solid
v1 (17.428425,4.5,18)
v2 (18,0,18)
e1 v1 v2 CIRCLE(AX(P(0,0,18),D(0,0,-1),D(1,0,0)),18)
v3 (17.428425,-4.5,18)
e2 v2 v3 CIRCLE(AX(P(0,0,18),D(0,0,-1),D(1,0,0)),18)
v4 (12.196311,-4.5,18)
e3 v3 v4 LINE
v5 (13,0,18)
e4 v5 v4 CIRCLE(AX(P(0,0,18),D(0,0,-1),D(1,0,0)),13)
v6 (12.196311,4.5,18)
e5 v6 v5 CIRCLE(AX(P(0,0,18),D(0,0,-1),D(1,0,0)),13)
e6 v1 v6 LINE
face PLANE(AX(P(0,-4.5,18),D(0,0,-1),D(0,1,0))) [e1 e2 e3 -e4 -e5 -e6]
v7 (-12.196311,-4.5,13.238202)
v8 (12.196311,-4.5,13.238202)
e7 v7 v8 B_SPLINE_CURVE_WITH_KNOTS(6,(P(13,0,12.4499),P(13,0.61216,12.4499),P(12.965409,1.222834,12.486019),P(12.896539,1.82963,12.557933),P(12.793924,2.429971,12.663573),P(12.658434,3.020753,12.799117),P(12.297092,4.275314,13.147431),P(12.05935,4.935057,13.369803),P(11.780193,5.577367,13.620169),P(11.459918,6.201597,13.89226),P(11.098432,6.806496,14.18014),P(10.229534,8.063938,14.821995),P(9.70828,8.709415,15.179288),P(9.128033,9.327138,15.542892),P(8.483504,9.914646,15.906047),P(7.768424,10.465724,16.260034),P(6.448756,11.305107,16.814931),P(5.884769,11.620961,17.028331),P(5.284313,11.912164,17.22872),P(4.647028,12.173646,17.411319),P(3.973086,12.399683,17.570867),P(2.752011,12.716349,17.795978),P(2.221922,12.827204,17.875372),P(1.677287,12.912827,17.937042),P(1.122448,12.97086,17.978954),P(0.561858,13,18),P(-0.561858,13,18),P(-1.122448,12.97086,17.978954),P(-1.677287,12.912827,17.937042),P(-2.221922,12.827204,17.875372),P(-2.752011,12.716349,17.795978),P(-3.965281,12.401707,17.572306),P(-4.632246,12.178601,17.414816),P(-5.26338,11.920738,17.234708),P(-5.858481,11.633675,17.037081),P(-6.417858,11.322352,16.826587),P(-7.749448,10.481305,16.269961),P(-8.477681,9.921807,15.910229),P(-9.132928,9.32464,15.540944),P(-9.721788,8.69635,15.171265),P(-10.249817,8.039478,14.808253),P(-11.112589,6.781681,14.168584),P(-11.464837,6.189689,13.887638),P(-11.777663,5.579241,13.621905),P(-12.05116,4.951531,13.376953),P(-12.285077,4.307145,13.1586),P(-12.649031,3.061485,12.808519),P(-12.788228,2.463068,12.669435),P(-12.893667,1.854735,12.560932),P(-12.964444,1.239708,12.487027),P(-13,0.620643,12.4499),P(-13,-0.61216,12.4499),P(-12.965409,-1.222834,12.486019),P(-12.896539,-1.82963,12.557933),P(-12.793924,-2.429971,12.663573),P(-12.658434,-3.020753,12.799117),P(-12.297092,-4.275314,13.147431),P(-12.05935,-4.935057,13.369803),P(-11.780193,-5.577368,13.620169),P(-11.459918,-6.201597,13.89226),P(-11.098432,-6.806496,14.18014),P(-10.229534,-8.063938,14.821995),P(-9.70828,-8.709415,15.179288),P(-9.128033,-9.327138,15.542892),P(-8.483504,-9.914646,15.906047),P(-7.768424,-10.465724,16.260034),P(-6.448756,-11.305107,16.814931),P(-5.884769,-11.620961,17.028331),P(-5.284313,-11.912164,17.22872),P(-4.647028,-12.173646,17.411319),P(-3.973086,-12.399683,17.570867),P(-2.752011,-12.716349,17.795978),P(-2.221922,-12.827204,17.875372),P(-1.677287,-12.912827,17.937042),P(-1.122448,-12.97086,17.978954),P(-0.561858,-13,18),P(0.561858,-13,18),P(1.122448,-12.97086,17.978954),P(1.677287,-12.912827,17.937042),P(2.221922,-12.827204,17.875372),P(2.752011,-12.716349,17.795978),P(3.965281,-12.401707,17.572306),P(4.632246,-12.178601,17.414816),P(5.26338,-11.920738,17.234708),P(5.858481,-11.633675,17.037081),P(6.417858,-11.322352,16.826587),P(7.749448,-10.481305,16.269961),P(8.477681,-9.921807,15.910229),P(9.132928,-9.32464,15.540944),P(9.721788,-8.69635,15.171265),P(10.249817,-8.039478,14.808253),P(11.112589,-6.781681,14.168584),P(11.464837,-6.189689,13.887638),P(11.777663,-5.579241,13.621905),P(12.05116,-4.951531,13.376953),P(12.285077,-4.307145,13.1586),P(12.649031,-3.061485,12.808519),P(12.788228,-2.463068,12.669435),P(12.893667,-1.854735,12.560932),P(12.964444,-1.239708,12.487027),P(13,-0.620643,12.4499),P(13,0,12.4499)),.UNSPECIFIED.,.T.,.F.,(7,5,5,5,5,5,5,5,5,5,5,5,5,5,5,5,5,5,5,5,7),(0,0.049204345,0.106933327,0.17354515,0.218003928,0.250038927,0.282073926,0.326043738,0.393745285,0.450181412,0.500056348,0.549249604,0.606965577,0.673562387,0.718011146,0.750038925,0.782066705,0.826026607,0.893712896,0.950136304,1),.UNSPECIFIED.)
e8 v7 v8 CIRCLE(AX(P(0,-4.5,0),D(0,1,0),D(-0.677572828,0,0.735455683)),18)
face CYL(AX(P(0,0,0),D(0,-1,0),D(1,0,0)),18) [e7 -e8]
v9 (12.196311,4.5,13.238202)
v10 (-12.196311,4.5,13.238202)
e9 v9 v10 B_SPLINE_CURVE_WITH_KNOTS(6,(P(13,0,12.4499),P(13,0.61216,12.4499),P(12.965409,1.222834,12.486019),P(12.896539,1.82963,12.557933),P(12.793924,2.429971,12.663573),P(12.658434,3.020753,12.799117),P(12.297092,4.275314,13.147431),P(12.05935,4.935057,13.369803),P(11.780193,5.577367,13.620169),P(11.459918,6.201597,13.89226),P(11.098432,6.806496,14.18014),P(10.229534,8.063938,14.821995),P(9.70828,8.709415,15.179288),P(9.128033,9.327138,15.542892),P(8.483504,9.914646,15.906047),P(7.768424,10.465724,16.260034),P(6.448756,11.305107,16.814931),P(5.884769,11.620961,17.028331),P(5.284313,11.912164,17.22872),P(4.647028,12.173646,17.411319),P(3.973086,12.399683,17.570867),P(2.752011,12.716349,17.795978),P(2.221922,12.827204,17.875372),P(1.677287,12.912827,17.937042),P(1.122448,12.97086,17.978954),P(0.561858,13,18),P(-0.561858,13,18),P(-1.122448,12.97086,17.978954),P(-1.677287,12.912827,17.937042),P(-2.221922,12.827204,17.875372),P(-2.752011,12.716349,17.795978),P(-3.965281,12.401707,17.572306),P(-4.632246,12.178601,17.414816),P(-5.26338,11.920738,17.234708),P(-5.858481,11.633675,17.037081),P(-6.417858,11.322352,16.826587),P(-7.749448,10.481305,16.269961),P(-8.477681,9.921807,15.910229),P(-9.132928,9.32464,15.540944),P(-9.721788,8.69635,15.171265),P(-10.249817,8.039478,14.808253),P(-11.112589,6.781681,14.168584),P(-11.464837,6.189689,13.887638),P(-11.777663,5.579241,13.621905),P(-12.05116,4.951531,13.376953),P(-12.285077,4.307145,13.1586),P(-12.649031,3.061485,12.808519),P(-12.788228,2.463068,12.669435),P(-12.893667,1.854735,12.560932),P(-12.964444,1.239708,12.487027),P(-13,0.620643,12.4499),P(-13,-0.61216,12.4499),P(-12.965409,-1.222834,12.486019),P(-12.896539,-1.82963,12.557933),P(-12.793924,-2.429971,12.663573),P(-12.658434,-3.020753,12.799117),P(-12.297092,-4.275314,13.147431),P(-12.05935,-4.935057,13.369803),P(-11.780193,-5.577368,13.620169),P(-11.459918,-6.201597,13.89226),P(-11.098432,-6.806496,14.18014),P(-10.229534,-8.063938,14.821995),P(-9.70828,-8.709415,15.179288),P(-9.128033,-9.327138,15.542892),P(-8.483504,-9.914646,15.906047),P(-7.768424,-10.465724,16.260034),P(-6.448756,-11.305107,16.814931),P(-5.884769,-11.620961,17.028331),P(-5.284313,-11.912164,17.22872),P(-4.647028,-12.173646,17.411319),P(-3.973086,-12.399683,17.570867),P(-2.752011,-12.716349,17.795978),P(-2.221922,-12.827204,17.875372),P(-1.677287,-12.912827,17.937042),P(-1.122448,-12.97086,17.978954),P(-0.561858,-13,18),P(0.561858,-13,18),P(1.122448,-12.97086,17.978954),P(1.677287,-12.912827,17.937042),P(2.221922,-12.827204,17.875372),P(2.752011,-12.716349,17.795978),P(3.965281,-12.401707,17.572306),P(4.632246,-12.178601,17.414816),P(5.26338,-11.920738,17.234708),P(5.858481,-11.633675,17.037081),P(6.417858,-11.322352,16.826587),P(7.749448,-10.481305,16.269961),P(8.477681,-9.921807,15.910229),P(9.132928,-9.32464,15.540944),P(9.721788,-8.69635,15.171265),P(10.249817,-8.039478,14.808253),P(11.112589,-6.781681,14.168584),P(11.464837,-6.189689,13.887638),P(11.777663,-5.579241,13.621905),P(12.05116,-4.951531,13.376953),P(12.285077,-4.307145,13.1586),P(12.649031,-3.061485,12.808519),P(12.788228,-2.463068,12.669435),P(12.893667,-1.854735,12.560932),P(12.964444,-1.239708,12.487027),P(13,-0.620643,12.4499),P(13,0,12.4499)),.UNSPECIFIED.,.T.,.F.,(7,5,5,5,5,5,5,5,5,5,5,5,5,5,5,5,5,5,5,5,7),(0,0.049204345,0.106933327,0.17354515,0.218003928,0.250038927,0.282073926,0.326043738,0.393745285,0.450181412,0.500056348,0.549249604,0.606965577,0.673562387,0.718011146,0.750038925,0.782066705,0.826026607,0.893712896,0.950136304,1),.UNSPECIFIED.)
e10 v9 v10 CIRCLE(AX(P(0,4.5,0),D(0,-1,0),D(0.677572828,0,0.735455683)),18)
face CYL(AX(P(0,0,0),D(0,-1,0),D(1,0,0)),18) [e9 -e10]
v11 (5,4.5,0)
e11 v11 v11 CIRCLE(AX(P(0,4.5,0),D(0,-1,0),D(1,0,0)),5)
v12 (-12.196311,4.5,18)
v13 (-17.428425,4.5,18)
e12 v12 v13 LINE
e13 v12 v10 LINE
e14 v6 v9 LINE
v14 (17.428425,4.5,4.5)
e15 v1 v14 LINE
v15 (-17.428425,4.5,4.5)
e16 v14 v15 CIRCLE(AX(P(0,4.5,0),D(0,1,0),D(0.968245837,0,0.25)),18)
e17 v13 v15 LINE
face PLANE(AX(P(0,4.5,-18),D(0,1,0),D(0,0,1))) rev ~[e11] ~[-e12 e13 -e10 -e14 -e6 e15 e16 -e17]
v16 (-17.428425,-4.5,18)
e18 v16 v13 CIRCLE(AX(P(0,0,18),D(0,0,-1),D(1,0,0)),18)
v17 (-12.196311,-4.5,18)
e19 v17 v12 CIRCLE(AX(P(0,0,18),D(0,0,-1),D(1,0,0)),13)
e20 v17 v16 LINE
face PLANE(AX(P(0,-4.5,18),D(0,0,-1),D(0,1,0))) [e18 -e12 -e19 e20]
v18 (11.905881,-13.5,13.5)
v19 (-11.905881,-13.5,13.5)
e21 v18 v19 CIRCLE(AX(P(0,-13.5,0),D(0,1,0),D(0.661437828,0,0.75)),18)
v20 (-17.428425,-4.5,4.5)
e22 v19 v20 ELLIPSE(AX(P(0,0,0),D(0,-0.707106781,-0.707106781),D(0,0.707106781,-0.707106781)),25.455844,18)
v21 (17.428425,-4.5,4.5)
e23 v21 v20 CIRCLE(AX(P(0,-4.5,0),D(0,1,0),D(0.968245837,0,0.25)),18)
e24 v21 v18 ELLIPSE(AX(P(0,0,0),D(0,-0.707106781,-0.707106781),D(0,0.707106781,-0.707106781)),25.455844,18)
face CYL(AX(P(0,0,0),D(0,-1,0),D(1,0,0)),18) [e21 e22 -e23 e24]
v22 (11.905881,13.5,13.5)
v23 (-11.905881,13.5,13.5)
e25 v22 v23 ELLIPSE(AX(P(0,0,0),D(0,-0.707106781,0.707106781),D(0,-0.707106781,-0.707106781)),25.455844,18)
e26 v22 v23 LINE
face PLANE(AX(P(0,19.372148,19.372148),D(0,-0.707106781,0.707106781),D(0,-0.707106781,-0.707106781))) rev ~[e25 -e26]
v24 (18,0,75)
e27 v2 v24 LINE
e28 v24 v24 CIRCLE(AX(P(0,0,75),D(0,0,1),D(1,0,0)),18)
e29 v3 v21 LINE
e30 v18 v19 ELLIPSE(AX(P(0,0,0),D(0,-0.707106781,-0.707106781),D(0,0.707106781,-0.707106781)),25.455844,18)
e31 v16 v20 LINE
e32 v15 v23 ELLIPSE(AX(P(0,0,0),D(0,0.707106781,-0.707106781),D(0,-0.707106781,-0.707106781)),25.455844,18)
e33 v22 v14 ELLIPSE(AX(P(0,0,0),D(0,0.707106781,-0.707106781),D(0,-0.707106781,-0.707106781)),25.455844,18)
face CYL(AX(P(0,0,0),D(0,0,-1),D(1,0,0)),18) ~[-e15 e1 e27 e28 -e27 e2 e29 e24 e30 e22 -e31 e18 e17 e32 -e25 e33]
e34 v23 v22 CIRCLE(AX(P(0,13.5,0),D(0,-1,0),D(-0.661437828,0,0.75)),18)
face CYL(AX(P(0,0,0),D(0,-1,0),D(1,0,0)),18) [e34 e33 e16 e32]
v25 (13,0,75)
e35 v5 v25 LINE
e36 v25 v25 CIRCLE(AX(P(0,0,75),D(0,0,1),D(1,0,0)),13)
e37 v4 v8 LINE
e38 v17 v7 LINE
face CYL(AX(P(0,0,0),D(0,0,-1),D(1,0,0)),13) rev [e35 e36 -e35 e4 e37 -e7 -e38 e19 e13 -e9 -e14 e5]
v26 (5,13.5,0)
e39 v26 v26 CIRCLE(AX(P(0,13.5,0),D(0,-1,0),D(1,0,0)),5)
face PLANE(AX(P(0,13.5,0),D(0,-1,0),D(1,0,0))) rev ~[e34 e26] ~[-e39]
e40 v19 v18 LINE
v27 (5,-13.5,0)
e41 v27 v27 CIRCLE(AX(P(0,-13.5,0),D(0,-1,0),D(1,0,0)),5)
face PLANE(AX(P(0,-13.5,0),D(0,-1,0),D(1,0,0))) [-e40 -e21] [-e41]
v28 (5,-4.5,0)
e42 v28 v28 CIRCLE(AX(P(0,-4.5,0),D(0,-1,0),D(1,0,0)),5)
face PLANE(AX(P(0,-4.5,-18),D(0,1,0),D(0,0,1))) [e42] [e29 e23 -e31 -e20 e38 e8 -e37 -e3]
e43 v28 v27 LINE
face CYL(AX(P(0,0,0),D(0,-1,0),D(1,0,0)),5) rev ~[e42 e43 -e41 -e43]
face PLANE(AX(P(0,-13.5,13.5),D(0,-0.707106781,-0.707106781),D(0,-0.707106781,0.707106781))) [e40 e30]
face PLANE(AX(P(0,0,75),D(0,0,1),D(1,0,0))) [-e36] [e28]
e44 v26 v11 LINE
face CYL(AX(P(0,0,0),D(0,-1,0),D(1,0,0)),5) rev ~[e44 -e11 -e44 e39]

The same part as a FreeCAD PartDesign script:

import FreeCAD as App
import Part
import Sketcher
from FreeCAD import Vector


def add_polygon(sketch, points):
    """Adds a closed chain of lines whose ends are joined by coincident constraints."""
    first, n = sketch.GeometryCount, len(points)
    for a, b in zip(points, points[1:] + points[:1]):
        sketch.addGeometry(Part.LineSegment(App.Vector(*a, 0), App.Vector(*b, 0)), False)
    for i in range(n):
        sketch.addConstraint(Sketcher.Constraint("Coincident", first + i, 2, first + (i + 1) % n, 1))

doc = App.newDocument("Part")
body = doc.addObject("PartDesign::Body", "Body")

sketch1 = body.newObject("Sketcher::SketchObject", "Sketch")
sketch1.AttachmentSupport = (doc.getObject("XY_Plane"), [""])
sketch1.MapMode = "FlatFace"
sketch1.addGeometry([
    Part.Circle(Vector(0, 0, 0), Vector(0, 0, 1), 18),
    Part.Circle(Vector(0, 0, 0), Vector(0, 0, 1), 13),
], False)
sketch1.addConstraint([
    Sketcher.Constraint("Coincident", 0, 3, -1, 1),
    Sketcher.Constraint("Coincident", 1, 3, -1, 1),
    Sketcher.Constraint("Diameter", 0, 36.0),
    Sketcher.Constraint("Diameter", 1, 26.0),
])
pad1 = body.newObject("PartDesign::Pad", "Pad")
pad1.Profile = sketch1
pad1.Length = 75

sketch2 = body.newObject("Sketcher::SketchObject", "Sketch001")
sketch2.AttachmentSupport = (doc.getObject("XZ_Plane"), [""])
sketch2.MapMode = "FlatFace"
sketch2.addGeometry(Part.Circle(Vector(0, 0, 0), Vector(0, 0, 1), 18), False)
sketch2.addConstraint([
    Sketcher.Constraint("Coincident", 0, 3, -1, 1),
    Sketcher.Constraint("Diameter", 0, 36.0),
])
pad2 = body.newObject("PartDesign::Pad", "Pad001")
pad2.Profile = sketch2
pad2.Length = 27
pad2.Midplane = True

sketch3 = body.newObject("Sketcher::SketchObject", "Sketch002")
sketch3.AttachmentSupport = (doc.getObject("YZ_Plane"), [""])
sketch3.MapMode = "FlatFace"
add_polygon(sketch3, [(-4, 18), (-4, -18), (4, -18), (4, 18)])
sketch3.addConstraint([
    Sketcher.Constraint("Vertical", 0),
    Sketcher.Constraint("Horizontal", 1),
    Sketcher.Constraint("Vertical", 2),
    Sketcher.Constraint("Horizontal", 3),
    Sketcher.Constraint("Symmetric", 0, 2, 2, 2, -1, 1),
    Sketcher.Constraint("DistanceX", 1, 1, 1, 2, 9.0),
    Sketcher.Constraint("DistanceY", 0, 2, 0, 1, 36.0),
])
pocket1 = body.newObject("PartDesign::Pocket", "Pocket")
pocket1.Profile = sketch3
pocket1.Length = 40
pocket1.Midplane = True

sketch4 = body.newObject("Sketcher::SketchObject", "Sketch003")
sketch4.AttachmentSupport = (doc.getObject("XZ_Plane"), [""])
sketch4.MapMode = "FlatFace"
sketch4.addGeometry(Part.Circle(Vector(0, 0, 0), Vector(0, 0, 1), 5), False)
sketch4.addConstraint([
    Sketcher.Constraint("Coincident", 0, 3, -1, 1),
    Sketcher.Constraint("Diameter", 0, 10.0),
])
pocket2 = body.newObject("PartDesign::Pocket", "Pocket001")
pocket2.Profile = sketch4
pocket2.Length = 40
pocket2.Midplane = True

sketch5 = body.newObject("Sketcher::SketchObject", "Sketch004")
sketch5.AttachmentSupport = (doc.getObject("YZ_Plane"), [""])
sketch5.MapMode = "FlatFace"
add_polygon(sketch5, [(-19, 0), (-14, 0), (-14, 14), (-19, 19)])
add_polygon(sketch5, [(14, 14), (14, 0), (19, 0), (19, 19)])
sketch5.addConstraint([
    Sketcher.Constraint("Horizontal", 0),
    Sketcher.Constraint("Vertical", 1),
    Sketcher.Constraint("Vertical", 3),
    Sketcher.Constraint("Vertical", 4),
    Sketcher.Constraint("Horizontal", 5),
    Sketcher.Constraint("Vertical", 6),
    Sketcher.Constraint("Symmetric", 0, 2, 4, 2, -1, 1),
    Sketcher.Constraint("Symmetric", 3, 2, 5, 2, -2),
    Sketcher.Constraint("Perpendicular", 2, 7),
    Sketcher.Constraint("Horizontal", 2, 2, 6, 2),
    Sketcher.Constraint("Horizontal", 1, 2, 7, 2),
    Sketcher.Constraint("DistanceY", 1, 1, 1, 2, 13.5),
    Sketcher.Constraint("DistanceX", 0, 2, 4, 2, 27.0),
    Sketcher.Constraint("Distance", 2, 8.304471),
])
pocket3 = body.newObject("PartDesign::Pocket", "Pocket002")
pocket3.Profile = sketch5
pocket3.Length = 29
pocket3.Midplane = True

doc.recompute()
